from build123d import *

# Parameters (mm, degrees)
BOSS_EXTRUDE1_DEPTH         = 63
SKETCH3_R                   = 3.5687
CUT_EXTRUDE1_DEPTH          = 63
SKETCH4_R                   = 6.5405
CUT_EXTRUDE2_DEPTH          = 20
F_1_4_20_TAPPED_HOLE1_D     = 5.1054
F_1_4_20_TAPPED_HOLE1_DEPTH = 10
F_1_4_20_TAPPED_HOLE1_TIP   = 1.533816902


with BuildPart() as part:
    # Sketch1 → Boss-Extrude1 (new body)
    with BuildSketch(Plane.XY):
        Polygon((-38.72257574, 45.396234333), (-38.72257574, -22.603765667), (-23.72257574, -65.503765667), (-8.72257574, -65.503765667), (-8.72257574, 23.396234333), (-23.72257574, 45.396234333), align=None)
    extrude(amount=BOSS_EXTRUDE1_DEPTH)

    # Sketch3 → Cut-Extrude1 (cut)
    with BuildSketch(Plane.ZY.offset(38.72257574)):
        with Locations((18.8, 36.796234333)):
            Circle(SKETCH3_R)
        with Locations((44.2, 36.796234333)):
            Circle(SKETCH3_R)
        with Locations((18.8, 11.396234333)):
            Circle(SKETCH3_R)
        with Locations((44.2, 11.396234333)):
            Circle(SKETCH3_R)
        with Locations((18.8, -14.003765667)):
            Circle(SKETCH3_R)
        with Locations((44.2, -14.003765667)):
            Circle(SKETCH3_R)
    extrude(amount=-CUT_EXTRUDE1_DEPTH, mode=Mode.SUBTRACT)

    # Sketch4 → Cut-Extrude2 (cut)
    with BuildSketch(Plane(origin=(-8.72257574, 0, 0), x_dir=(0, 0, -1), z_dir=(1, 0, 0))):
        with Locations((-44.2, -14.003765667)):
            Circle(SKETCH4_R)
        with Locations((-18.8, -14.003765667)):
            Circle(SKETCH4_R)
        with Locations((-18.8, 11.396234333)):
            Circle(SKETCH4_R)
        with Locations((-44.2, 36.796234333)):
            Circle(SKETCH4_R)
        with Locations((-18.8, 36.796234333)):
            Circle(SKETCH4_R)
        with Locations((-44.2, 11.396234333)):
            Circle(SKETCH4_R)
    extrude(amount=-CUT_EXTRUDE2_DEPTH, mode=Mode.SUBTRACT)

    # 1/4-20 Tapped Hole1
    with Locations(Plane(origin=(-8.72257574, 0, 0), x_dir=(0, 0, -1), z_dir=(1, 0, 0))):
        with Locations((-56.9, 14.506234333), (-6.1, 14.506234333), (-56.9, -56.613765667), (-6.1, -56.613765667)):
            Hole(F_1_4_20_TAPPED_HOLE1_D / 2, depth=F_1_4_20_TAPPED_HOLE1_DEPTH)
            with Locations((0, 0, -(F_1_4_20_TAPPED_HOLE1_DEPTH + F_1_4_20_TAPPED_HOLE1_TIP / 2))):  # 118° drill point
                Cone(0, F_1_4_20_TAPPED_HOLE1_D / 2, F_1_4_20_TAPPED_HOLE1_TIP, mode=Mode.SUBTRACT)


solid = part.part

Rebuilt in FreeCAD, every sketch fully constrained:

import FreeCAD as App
import Part
import Sketcher
from FreeCAD import Vector


def add_polygon(sketch, points):
    """Adds a closed chain of lines whose ends are joined by coincident constraints."""
    first, n = sketch.GeometryCount, len(points)
    for a, b in zip(points, points[1:] + points[:1]):
        sketch.addGeometry(Part.LineSegment(App.Vector(*a, 0), App.Vector(*b, 0)), False)
    for i in range(n):
        sketch.addConstraint(Sketcher.Constraint("Coincident", first + i, 2, first + (i + 1) % n, 1))

doc = App.newDocument("Part")
body = doc.addObject("PartDesign::Body", "Body")

# Sketch on XY plane
sketch1 = body.newObject("Sketcher::SketchObject", "Sketch")
sketch1.AttachmentSupport = (doc.getObject("XY_Plane"), [""])
sketch1.MapMode = "FlatFace"
add_polygon(sketch1, [(-39, 45), (-39, -23), (-24, -66), (-9, -66), (-9, 23), (-24, 45)])  # lines 0-5
sketch1.addConstraint(Sketcher.Constraint("Vertical", 0))
sketch1.addConstraint(Sketcher.Constraint("Horizontal", 2))
sketch1.addConstraint(Sketcher.Constraint("Vertical", 3))
sketch1.addConstraint(Sketcher.Constraint("Horizontal", 5))
sketch1.addConstraint(Sketcher.Constraint("Vertical", 1, 2, 4, 2))
sketch1.addConstraint(Sketcher.Constraint("Equal", 2, 5))
sketch1.addConstraint(Sketcher.Constraint("DistanceX", 2, 1, 2, 2, 15.0))
sketch1.addConstraint(Sketcher.Constraint("DistanceY", 0, 2, 0, 1, 68.0))
sketch1.addConstraint(Sketcher.Constraint("DistanceY", 3, 1, 3, 2, 88.9))
sketch1.addConstraint(Sketcher.Constraint("DistanceY", 0, 2, 3, 2, 46.0))
sketch1.addConstraint(Sketcher.Constraint("DistanceX", 0, 2, -1, 1, 38.722576))
sketch1.addConstraint(Sketcher.Constraint("DistanceY", 0, 2, -1, 1, 22.603766))
pad1 = body.newObject("PartDesign::Pad", "Pad")
pad1.Profile = sketch1
pad1.Length = 63

# Sketch on YZ plane
sketch2 = body.newObject("Sketcher::SketchObject", "Sketch001")
sketch2.AttachmentSupport = (doc.getObject("YZ_Plane"), [""])
sketch2.MapMode = "FlatFace"
sketch2.AttachmentOffset = App.Placement(Vector(0, 0, -38.722576), App.Rotation())
sketch2.addGeometry(Part.Circle(Vector(36.8, 18.8, 0), Vector(0, 0, 1), 3.6), False)
sketch2.addGeometry(Part.Circle(Vector(36.8, 44.2, 0), Vector(0, 0, 1), 3.6), False)
sketch2.addGeometry(Part.Circle(Vector(11.4, 18.8, 0), Vector(0, 0, 1), 3.6), False)
sketch2.addGeometry(Part.Circle(Vector(11.4, 44.2, 0), Vector(0, 0, 1), 3.6), False)
sketch2.addGeometry(Part.Circle(Vector(-14, 18.8, 0), Vector(0, 0, 1), 3.6), False)
sketch2.addGeometry(Part.Circle(Vector(-14, 44.2, 0), Vector(0, 0, 1), 3.6), False)
sketch2.addConstraint(Sketcher.Constraint("Equal", 0, 1))
sketch2.addConstraint(Sketcher.Constraint("Equal", 1, 2))
sketch2.addConstraint(Sketcher.Constraint("Equal", 2, 3))
sketch2.addConstraint(Sketcher.Constraint("Equal", 3, 4))
sketch2.addConstraint(Sketcher.Constraint("Equal", 4, 5))
sketch2.addConstraint(Sketcher.Constraint("Horizontal", 0, 3, 2, 3))
sketch2.addConstraint(Sketcher.Constraint("Horizontal", 1, 3, 3, 3))
sketch2.addConstraint(Sketcher.Constraint("Horizontal", 2, 3, 4, 3))
sketch2.addConstraint(Sketcher.Constraint("Horizontal", 3, 3, 5, 3))
sketch2.addConstraint(Sketcher.Constraint("Vertical", 0, 3, 1, 3))
sketch2.addConstraint(Sketcher.Constraint("Vertical", 2, 3, 3, 3))
sketch2.addConstraint(Sketcher.Constraint("Vertical", 4, 3, 5, 3))
sketch2.addConstraint(Sketcher.Constraint("Diameter", 0, 7.1374))
sketch2.addConstraint(Sketcher.Constraint("DistanceY", -1, 1, 0, 3, 18.8))
sketch2.addConstraint(Sketcher.Constraint("DistanceY", -1, 1, 1, 3, 44.2))
sketch2.addConstraint(Sketcher.Constraint("DistanceX", 2, 3, 0, 3, 25.4))
sketch2.addConstraint(Sketcher.Constraint("DistanceX", 4, 3, 2, 3, 25.4))
sketch2.addConstraint(Sketcher.Constraint("DistanceX", -1, 1, 0, 3, 36.796234))
pocket1 = body.newObject("PartDesign::Pocket", "Pocket")
pocket1.Profile = sketch2
pocket1.Length = 63
pocket1.Reversed = True

# Sketch on YZ plane
sketch3 = body.newObject("Sketcher::SketchObject", "Sketch002")
sketch3.AttachmentSupport = (doc.getObject("YZ_Plane"), [""])
sketch3.MapMode = "FlatFace"
sketch3.AttachmentOffset = App.Placement(Vector(0, 0, -8.722576), App.Rotation())
sketch3.addGeometry(Part.Circle(Vector(-14, 44, 0), Vector(0, 0, 1), 7), False)
sketch3.addGeometry(Part.Circle(Vector(-14, 19, 0), Vector(0, 0, 1), 7), False)
sketch3.addGeometry(Part.Circle(Vector(11, 19, 0), Vector(0, 0, 1), 7), False)
sketch3.addGeometry(Part.Circle(Vector(37, 44, 0), Vector(0, 0, 1), 7), False)
sketch3.addGeometry(Part.Circle(Vector(37, 19, 0), Vector(0, 0, 1), 7), False)
sketch3.addGeometry(Part.Circle(Vector(11, 44, 0), Vector(0, 0, 1), 7), False)
sketch3.addConstraint(Sketcher.Constraint("Equal", 0, 1))
sketch3.addConstraint(Sketcher.Constraint("Equal", 1, 2))
sketch3.addConstraint(Sketcher.Constraint("Equal", 2, 3))
sketch3.addConstraint(Sketcher.Constraint("Equal", 3, 4))
sketch3.addConstraint(Sketcher.Constraint("Equal", 4, 5))
sketch3.addConstraint(Sketcher.Constraint("Horizontal", 1, 3, 2, 3))
sketch3.addConstraint(Sketcher.Constraint("Horizontal", 0, 3, 3, 3))
sketch3.addConstraint(Sketcher.Constraint("Horizontal", 2, 3, 4, 3))
sketch3.addConstraint(Sketcher.Constraint("Horizontal", 3, 3, 5, 3))
sketch3.addConstraint(Sketcher.Constraint("Vertical", 0, 3, 1, 3))
sketch3.addConstraint(Sketcher.Constraint("Vertical", 3, 3, 4, 3))
sketch3.addConstraint(Sketcher.Constraint("Vertical", 2, 3, 5, 3))
sketch3.addConstraint(Sketcher.Constraint("Diameter", 0, 13.081))
sketch3.addConstraint(Sketcher.Constraint("DistanceY", -1, 1, 0, 3, 44.2))
sketch3.addConstraint(Sketcher.Constraint("DistanceY", -1, 1, 1, 3, 18.8))
sketch3.addConstraint(Sketcher.Constraint("DistanceX", 1, 3, 2, 3, 25.4))
sketch3.addConstraint(Sketcher.Constraint("DistanceX", 2, 3, 3, 3, 25.4))
sketch3.addConstraint(Sketcher.Constraint("DistanceX", 0, 3, -1, 1, 14.003766))
pocket2 = body.newObject("PartDesign::Pocket", "Pocket001")
pocket2.Profile = sketch3
pocket2.Length = 20

# Sketch on YZ plane
sketch4 = body.newObject("Sketcher::SketchObject", "Sketch003")
sketch4.AttachmentSupport = (doc.getObject("YZ_Plane"), [""])
sketch4.MapMode = "FlatFace"
sketch4.AttachmentOffset = App.Placement(Vector(0, 0, -8.722576), App.Rotation())
sketch4.addGeometry(Part.Circle(Vector(14.5, 56.9, 0), Vector(0, 0, 1), 2.6), False)
sketch4.addGeometry(Part.Circle(Vector(14.5, 6.1, 0), Vector(0, 0, 1), 2.6), False)
sketch4.addGeometry(Part.Circle(Vector(-56.6, 56.9, 0), Vector(0, 0, 1), 2.6), False)
sketch4.addGeometry(Part.Circle(Vector(-56.6, 6.1, 0), Vector(0, 0, 1), 2.6), False)
sketch4.addConstraint(Sketcher.Constraint("Equal", 0, 1))
sketch4.addConstraint(Sketcher.Constraint("Equal", 1, 2))
sketch4.addConstraint(Sketcher.Constraint("Equal", 2, 3))
sketch4.addConstraint(Sketcher.Constraint("Horizontal", 0, 3, 2, 3))
sketch4.addConstraint(Sketcher.Constraint("Horizontal", 1, 3, 3, 3))
sketch4.addConstraint(Sketcher.Constraint("Vertical", 0, 3, 1, 3))
sketch4.addConstraint(Sketcher.Constraint("Vertical", 2, 3, 3, 3))
sketch4.addConstraint(Sketcher.Constraint("Diameter", 0, 5.1054))
sketch4.addConstraint(Sketcher.Constraint("DistanceY", -1, 1, 0, 3, 56.9))
sketch4.addConstraint(Sketcher.Constraint("DistanceY", -1, 1, 1, 3, 6.1))
sketch4.addConstraint(Sketcher.Constraint("DistanceX", 2, 3, 0, 3, 71.12))
sketch4.addConstraint(Sketcher.Constraint("DistanceX", -1, 1, 0, 3, 14.506234))
doc.recompute()
hole = body.newObject("PartDesign::Hole", "Hole")
hole.Profile = sketch4
hole.ThreadType = "None"
hole.Diameter = 5.1054
hole.DepthType = "Dimension"
hole.Depth = 10
hole.DrillPoint = "Angled"
hole.DrillPointAngle = 118

doc.recompute()
